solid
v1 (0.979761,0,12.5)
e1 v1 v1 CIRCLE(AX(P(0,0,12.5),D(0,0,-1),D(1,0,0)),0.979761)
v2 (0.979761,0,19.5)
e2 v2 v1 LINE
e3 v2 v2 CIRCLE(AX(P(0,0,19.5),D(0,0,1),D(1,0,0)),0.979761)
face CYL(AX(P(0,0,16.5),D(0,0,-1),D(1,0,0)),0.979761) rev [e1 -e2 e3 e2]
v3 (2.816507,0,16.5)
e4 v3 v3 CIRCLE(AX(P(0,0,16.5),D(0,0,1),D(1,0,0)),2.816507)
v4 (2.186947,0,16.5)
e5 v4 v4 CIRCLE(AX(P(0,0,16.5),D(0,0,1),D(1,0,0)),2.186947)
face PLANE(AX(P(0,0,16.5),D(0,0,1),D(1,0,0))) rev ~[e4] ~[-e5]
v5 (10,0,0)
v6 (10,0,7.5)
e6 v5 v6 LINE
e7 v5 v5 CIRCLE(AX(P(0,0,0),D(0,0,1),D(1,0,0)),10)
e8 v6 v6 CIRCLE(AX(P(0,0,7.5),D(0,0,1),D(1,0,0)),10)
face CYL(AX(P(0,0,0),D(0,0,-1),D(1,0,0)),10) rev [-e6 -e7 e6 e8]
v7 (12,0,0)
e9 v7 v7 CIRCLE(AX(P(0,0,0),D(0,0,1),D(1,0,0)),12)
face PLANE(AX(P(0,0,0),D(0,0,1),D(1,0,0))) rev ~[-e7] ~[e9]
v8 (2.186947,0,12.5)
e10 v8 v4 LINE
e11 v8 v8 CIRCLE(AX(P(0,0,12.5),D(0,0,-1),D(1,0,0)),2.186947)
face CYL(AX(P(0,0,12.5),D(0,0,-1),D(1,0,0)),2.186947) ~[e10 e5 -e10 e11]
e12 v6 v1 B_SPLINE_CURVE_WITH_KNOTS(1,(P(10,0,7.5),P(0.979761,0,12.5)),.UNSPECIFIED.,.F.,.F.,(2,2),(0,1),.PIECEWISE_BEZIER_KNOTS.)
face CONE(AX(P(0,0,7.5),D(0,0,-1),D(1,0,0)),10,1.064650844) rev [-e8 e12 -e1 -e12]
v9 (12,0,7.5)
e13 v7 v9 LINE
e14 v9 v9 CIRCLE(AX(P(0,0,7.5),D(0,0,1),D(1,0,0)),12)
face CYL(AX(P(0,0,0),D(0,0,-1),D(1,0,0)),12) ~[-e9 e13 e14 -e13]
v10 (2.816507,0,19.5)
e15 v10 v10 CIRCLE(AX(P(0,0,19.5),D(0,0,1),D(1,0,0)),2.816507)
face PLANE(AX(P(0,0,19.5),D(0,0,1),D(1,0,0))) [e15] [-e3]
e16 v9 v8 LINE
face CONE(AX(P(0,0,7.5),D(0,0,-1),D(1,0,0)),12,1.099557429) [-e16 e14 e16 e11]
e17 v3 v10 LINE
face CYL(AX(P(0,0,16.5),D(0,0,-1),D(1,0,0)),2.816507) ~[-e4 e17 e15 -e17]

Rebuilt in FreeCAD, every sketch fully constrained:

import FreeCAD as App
import Part
import Sketcher

V = App.Vector
Q = App.Units.Quantity

doc = App.newDocument("Part")
body = doc.addObject("PartDesign::Body", "Body")

# Sketch on XY plane
sketch1 = body.newObject("Sketcher::SketchObject", "Sketch")
sketch1.AttachmentSupport = (doc.getObject("XY_Plane"), [""])
sketch1.MapMode = "FlatFace"
sketch1.addGeometry(Part.Circle(V(0, 0, 0), V(0, 0, 1), 12), False)
sketch1.addGeometry(Part.Circle(V(0, 0, 0), V(0, 0, 1), 10), False)
sketch1.addConstraint(Sketcher.Constraint("Coincident", 0, 3, -1, 1))
sketch1.addConstraint(Sketcher.Constraint("Coincident", 1, 3, -1, 1))
sketch1.addConstraint(Sketcher.Constraint("Diameter", 0, Q("24 mm")))
sketch1.addConstraint(Sketcher.Constraint("Diameter", 1, Q("20 mm")))
pad1 = body.newObject("PartDesign::Pad", "Pad")
pad1.Profile = sketch1
pad1.Length = 7.5

# Sketch on XY plane
sketch2 = body.newObject("Sketcher::SketchObject", "Sketch001")
sketch2.AttachmentSupport = (doc.getObject("XY_Plane"), [""])
sketch2.MapMode = "FlatFace"
sketch2.AttachmentOffset = App.Placement(V(0, 0, 7.5), App.Rotation())
sketch2.addGeometry(Part.Circle(V(0, 0, 0), V(0, 0, 1), 12), False)
sketch2.addConstraint(Sketcher.Constraint("Coincident", 0, 3, -1, 1))
sketch2.addConstraint(Sketcher.Constraint("Diameter", 0, Q("24 mm")))
pad2 = body.newObject("PartDesign::Pad", "Pad001")
pad2.Profile = sketch2
pad2.Length = 5
pad2.TaperAngle = -63

# Sketch on XY plane
sketch3 = body.newObject("Sketcher::SketchObject", "Sketch002")
sketch3.AttachmentSupport = (doc.getObject("XY_Plane"), [""])
sketch3.MapMode = "FlatFace"
sketch3.AttachmentOffset = App.Placement(V(0, 0, 7.5), App.Rotation())
sketch3.addGeometry(Part.Circle(V(0, 0, 0), V(0, 0, 1), 10), False)
sketch3.addConstraint(Sketcher.Constraint("Coincident", 0, 3, -1, 1))
sketch3.addConstraint(Sketcher.Constraint("Diameter", 0, Q("20 mm")))
pocket1 = body.newObject("PartDesign::Pocket", "Pocket")
pocket1.Profile = sketch3
pocket1.Length = 5
pocket1.Reversed = True
pocket1.TaperAngle = -61

# Sketch on XY plane
sketch4 = body.newObject("Sketcher::SketchObject", "Sketch003")
sketch4.AttachmentSupport = (doc.getObject("XY_Plane"), [""])
sketch4.MapMode = "FlatFace"
sketch4.AttachmentOffset = App.Placement(V(0, 0, 12.5), App.Rotation())
sketch4.addGeometry(Part.Circle(V(0, 0, 0), V(0, 0, 1), 2.2), False)
sketch4.addGeometry(Part.Circle(V(0, 0, 0), V(0, 0, 1), 1), False)
sketch4.addConstraint(Sketcher.Constraint("Coincident", 0, 3, -1, 1))
sketch4.addConstraint(Sketcher.Constraint("Coincident", 1, 3, -1, 1))
sketch4.addConstraint(Sketcher.Constraint("Diameter", 0, Q("4.373895 mm")))
sketch4.addConstraint(Sketcher.Constraint("Diameter", 1, Q("1.959522 mm")))
pad3 = body.newObject("PartDesign::Pad", "Pad002")
pad3.Profile = sketch4
pad3.Length = 4

# Sketch on XY plane
sketch5 = body.newObject("Sketcher::SketchObject", "Sketch004")
sketch5.AttachmentSupport = (doc.getObject("XY_Plane"), [""])
sketch5.MapMode = "FlatFace"
sketch5.AttachmentOffset = App.Placement(V(0, 0, 16.5), App.Rotation())
sketch5.addGeometry(Part.Circle(V(0, 0, 0), V(0, 0, 1), 2.8), False)
sketch5.addGeometry(Part.Circle(V(0, 0, 0), V(0, 0, 1), 1), False)
sketch5.addConstraint(Sketcher.Constraint("Coincident", 0, 3, -1, 1))
sketch5.addConstraint(Sketcher.Constraint("Coincident", 1, 3, -1, 1))
sketch5.addConstraint(Sketcher.Constraint("Diameter", 0, Q("5.633014 mm")))
sketch5.addConstraint(Sketcher.Constraint("Diameter", 1, Q("1.959522 mm")))
pad4 = body.newObject("PartDesign::Pad", "Pad003")
pad4.Profile = sketch5
pad4.Length = 3

doc.recompute()
